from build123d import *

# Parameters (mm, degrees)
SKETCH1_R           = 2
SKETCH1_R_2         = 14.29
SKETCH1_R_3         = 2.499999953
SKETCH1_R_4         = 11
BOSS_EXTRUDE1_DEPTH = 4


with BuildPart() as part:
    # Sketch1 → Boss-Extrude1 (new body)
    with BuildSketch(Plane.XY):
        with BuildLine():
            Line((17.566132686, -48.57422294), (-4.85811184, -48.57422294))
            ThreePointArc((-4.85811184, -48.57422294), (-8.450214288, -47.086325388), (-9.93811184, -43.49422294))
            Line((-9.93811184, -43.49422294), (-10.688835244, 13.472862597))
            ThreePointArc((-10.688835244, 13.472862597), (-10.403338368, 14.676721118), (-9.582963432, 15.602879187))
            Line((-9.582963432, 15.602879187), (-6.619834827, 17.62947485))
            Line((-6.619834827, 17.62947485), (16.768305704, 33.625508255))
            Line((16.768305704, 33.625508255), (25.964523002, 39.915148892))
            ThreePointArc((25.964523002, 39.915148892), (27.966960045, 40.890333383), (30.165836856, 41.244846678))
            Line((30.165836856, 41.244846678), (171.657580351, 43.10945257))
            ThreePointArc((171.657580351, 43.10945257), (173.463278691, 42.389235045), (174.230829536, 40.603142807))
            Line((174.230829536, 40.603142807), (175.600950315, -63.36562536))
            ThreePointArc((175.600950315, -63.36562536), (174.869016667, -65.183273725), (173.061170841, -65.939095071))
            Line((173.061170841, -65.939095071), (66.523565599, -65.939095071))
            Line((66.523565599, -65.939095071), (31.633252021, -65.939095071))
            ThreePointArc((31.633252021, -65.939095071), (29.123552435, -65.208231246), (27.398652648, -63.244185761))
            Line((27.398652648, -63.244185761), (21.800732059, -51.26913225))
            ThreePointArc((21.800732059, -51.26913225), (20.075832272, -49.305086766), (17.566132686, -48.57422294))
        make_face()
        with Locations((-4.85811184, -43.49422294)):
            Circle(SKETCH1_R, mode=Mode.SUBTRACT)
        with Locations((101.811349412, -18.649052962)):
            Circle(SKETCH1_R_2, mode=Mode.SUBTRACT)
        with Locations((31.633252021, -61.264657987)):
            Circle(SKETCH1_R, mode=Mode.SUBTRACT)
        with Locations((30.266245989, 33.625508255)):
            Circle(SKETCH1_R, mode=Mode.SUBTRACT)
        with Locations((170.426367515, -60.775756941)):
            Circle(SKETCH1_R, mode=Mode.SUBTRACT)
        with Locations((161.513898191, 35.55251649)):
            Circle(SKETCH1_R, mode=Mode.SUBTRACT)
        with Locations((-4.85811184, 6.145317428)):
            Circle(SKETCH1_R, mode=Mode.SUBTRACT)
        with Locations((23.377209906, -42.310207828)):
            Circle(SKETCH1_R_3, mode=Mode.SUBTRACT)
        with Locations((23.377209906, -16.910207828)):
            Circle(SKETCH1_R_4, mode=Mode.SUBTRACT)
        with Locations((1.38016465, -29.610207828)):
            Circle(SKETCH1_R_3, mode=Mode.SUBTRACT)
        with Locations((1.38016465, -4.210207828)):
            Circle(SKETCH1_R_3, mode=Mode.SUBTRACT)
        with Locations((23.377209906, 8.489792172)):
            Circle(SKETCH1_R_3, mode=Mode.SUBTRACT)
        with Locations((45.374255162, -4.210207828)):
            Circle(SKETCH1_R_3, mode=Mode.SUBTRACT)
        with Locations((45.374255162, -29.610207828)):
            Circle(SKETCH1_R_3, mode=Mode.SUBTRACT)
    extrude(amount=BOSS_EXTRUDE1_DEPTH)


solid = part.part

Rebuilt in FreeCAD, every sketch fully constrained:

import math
import FreeCAD as App
import Part
import Sketcher
from FreeCAD import Vector
Q = App.Units.Quantity

doc = App.newDocument("Part")
body = doc.addObject("PartDesign::Body", "Body")

sketch1 = body.newObject("Sketcher::SketchObject", "Sketch")
sketch1.AttachmentSupport = (doc.getObject("XY_Plane"), [""])
sketch1.MapMode = "FlatFace"
sketch1.addGeometry([
    Part.LineSegment(Vector(-4.9, -48.6, 0), Vector(17.6, -48.6, 0)),
    Part.ArcOfCircle(Part.Circle(Vector(17.6, -53.2, 0), Vector(0, 0, 1), 4.7), math.radians(25), math.radians(90)),
    Part.LineSegment(Vector(21.8, -51.3, 0), Vector(27.4, -63.2, 0)),
    Part.ArcOfCircle(Part.Circle(Vector(31.6, -61.3, 0), Vector(0, 0, 1), 4.7), math.radians(-155), math.radians(-90)),
    Part.LineSegment(Vector(31.6, -65.9, 0), Vector(173.1, -65.9, 0)),
    Part.ArcOfCircle(Part.Circle(Vector(173.1, -63.4, 0), Vector(0, 0, 1), 2.5), math.radians(-90), math.radians(1)),
    Part.LineSegment(Vector(175.6, -63.4, 0), Vector(174.2, 40.6, 0)),
    Part.ArcOfCircle(Part.Circle(Vector(171.7, 40.6, 0), Vector(0, 0, 1), 2.5), math.radians(1), math.radians(91)),
    Part.LineSegment(Vector(171.7, 43.1, 0), Vector(30.2, 41.2, 0)),
    Part.ArcOfCircle(Part.Circle(Vector(30.3, 33.6, 0), Vector(0, 0, 1), 7.6), math.radians(91), math.radians(124)),
    Part.LineSegment(Vector(26, 39.9, 0), Vector(16.8, 33.6, 0)),
    Part.LineSegment(Vector(16.8, 33.6, 0), Vector(-6.6, 17.6, 0)),
    Part.LineSegment(Vector(-6.6, 17.6, 0), Vector(-9.6, 15.6, 0)),
    Part.ArcOfCircle(Part.Circle(Vector(-8.1, 13.5, 0), Vector(0, 0, 1), 2.5), math.radians(124), math.radians(181)),
    Part.LineSegment(Vector(-10.7, 13.5, 0), Vector(-9.9, -43.5, 0)),
    Part.ArcOfCircle(Part.Circle(Vector(-4.9, -43.5, 0), Vector(0, 0, 1), 5.1), math.radians(-180), math.radians(-90)),
    Part.Circle(Vector(170.4, -60.8, 0), Vector(0, 0, 1), 2),
    Part.Circle(Vector(101.8, -18.6, 0), Vector(0, 0, 1), 14.3),
    Part.Circle(Vector(31.6, -61.3, 0), Vector(0, 0, 1), 2),
    Part.Circle(Vector(23.4, -42.3, 0), Vector(0, 0, 1), 2.5),
    Part.Circle(Vector(-4.9, -43.5, 0), Vector(0, 0, 1), 2),
    Part.Circle(Vector(45.4, -29.6, 0), Vector(0, 0, 1), 2.5),
    Part.Circle(Vector(1.4, -29.6, 0), Vector(0, 0, 1), 2.5),
    Part.Circle(Vector(23.4, -16.9, 0), Vector(0, 0, 1), 11),
    Part.Circle(Vector(161.5, 35.6, 0), Vector(0, 0, 1), 2),
    Part.Circle(Vector(45.4, -4.2, 0), Vector(0, 0, 1), 2.5),
    Part.Circle(Vector(1.4, -4.2, 0), Vector(0, 0, 1), 2.5),
    Part.Circle(Vector(23.4, 8.5, 0), Vector(0, 0, 1), 2.5),
    Part.Circle(Vector(-4.9, 6.1, 0), Vector(0, 0, 1), 2),
    Part.Circle(Vector(30.3, 33.6, 0), Vector(0, 0, 1), 2),
], False)
sketch1.addConstraint([
    Sketcher.Constraint("Tangent", 0, 2, 1, 2),
    Sketcher.Constraint("Tangent", 1, 1, 2, 1),
    Sketcher.Constraint("Tangent", 2, 2, 3, 1),
    Sketcher.Constraint("Tangent", 3, 2, 4, 1),
    Sketcher.Constraint("Tangent", 4, 2, 5, 1),
    Sketcher.Constraint("Tangent", 5, 2, 6, 1),
    Sketcher.Constraint("Tangent", 6, 2, 7, 1),
    Sketcher.Constraint("Tangent", 7, 2, 8, 1),
    Sketcher.Constraint("Tangent", 8, 2, 9, 1),
    Sketcher.Constraint("Tangent", 9, 2, 10, 1),
    Sketcher.Constraint("Coincident", 10, 2, 11, 1),
    Sketcher.Constraint("Coincident", 11, 2, 12, 1),
    Sketcher.Constraint("Tangent", 12, 2, 13, 1),
    Sketcher.Constraint("Tangent", 13, 2, 14, 1),
    Sketcher.Constraint("Coincident", 14, 2, 15, 1),
    Sketcher.Constraint("Tangent", 15, 2, 0, 1),
    Sketcher.Constraint("Horizontal", 0),
    Sketcher.Constraint("Horizontal", 4),
    Sketcher.Constraint("Coincident", 18, 3, 3, 3),
    Sketcher.Constraint("Coincident", 20, 3, 15, 3),
    Sketcher.Constraint("Coincident", 29, 3, 9, 3),
    Sketcher.Constraint("Equal", 1, 3),
    Sketcher.Constraint("Equal", 5, 7),
    Sketcher.Constraint("Equal", 7, 13),
    Sketcher.Constraint("Equal", 16, 18),
    Sketcher.Constraint("Equal", 18, 20),
    Sketcher.Constraint("Equal", 19, 21),
    Sketcher.Constraint("Equal", 21, 22),
    Sketcher.Constraint("Equal", 20, 24),
    Sketcher.Constraint("Equal", 22, 25),
    Sketcher.Constraint("Equal", 25, 26),
    Sketcher.Constraint("Equal", 26, 27),
    Sketcher.Constraint("Equal", 24, 28),
    Sketcher.Constraint("Equal", 28, 29),
    Sketcher.Constraint("Perpendicular", 6, 8),
    Sketcher.Constraint("Parallel", 10, 11),
    Sketcher.Constraint("Parallel", 11, 12),
    Sketcher.Constraint("Perpendicular", 8, 14),
    Sketcher.Constraint("Horizontal", 21, 3, 22, 3),
    Sketcher.Constraint("Horizontal", 25, 3, 26, 3),
    Sketcher.Constraint("Horizontal", 29, 3, 10, 2),
    Sketcher.Constraint("Horizontal", 20, 3, 14, 2),
    Sketcher.Constraint("Vertical", 19, 3, 23, 3),
    Sketcher.Constraint("Vertical", 21, 3, 25, 3),
    Sketcher.Constraint("Vertical", 22, 3, 26, 3),
    Sketcher.Constraint("Vertical", 23, 3, 27, 3),
    Sketcher.Constraint("Vertical", 20, 3, 28, 3),
    Sketcher.Constraint("Diameter", 16, Q("4 mm")),
    Sketcher.Constraint("Diameter", 19, Q("5 mm")),
    Sketcher.Constraint("Diameter", 23, Q("22 mm")),
    Sketcher.Constraint("Diameter", 17, Q("28.58 mm")),
    Sketcher.Constraint("Radius", 5, Q("2.54 mm")),
    Sketcher.Constraint("Radius", 9, Q("7.62 mm")),
    Sketcher.Constraint("Radius", 15, Q("5.08 mm")),
    Sketcher.Constraint("DistanceX", 11, 2, 26, 3, Q("7.999999 mm")),
    Sketcher.Constraint("DistanceY", 19, 3, 21, 3, Q("12.7 mm")),
    Sketcher.Constraint("DistanceY", 21, 3, 23, 3, Q("12.7 mm")),
    Sketcher.Constraint("DistanceY", 23, 3, 25, 3, Q("12.7 mm")),
    Sketcher.Constraint("DistanceY", 25, 3, 27, 3, Q("12.7 mm")),
    Sketcher.Constraint("Radius", 1, Q("4.674437 mm")),
    Sketcher.Constraint("DistanceX", 13, 2, 11, 2, Q("4.069 mm")),
    Sketcher.Constraint("DistanceX", 4, 1, 4, 2, Q("141.427919 mm")),
    Sketcher.Constraint("DistanceX", -1, 1, 24, 3, Q("161.513898 mm")),
    Sketcher.Constraint("DistanceX", 3, 3, 7, 3, Q("140.057798 mm")),
    Sketcher.Constraint("DistanceX", 13, 3, 9, 3, Q("38.415302 mm")),
    Sketcher.Constraint("DistanceY", 3, 3, 16, 3, Q("0.488901 mm")),
    Sketcher.Constraint("DistanceX", 1, 3, 1, 1, Q("4.234599 mm")),
    Sketcher.Constraint("DistanceX", 17, 3, 5, 2, Q("73.789601 mm")),
    Sketcher.Constraint("DistanceY", 16, 3, 6, 2, Q("101.3789 mm")),
    Sketcher.Constraint("Distance", 8, Q("141.504029 mm")),
    Sketcher.Constraint("Distance", 14, Q("56.972032 mm")),
    Sketcher.Constraint("DistanceX", 0, 1, 0, 2, Q("22.424245 mm")),
    Sketcher.Constraint("DistanceY", 1, 3, -1, 1, Q("53.24866 mm")),
    Sketcher.Constraint("DistanceX", -1, 1, 5, 3, Q("173.061171 mm")),
    Sketcher.Constraint("DistanceX", -1, 1, 19, 3, Q("23.37721 mm")),
    Sketcher.Constraint("DistanceX", 9, 3, 16, 3, Q("140.160122 mm")),
    Sketcher.Constraint("DistanceY", 17, 3, 9, 3, Q("52.274561 mm")),
    Sketcher.Constraint("DistanceY", 18, 3, 19, 3, Q("18.95445 mm")),
    Sketcher.Constraint("DistanceY", 17, 3, 24, 3, Q("54.201569 mm")),
    Sketcher.Constraint("DistanceX", 9, 3, 25, 3, Q("15.108009 mm")),
    Sketcher.Constraint("DistanceY", 28, 3, 29, 3, Q("27.480191 mm")),
])
pad1 = body.newObject("PartDesign::Pad", "Pad")
pad1.Profile = sketch1
pad1.Length = 4

doc.recompute()
